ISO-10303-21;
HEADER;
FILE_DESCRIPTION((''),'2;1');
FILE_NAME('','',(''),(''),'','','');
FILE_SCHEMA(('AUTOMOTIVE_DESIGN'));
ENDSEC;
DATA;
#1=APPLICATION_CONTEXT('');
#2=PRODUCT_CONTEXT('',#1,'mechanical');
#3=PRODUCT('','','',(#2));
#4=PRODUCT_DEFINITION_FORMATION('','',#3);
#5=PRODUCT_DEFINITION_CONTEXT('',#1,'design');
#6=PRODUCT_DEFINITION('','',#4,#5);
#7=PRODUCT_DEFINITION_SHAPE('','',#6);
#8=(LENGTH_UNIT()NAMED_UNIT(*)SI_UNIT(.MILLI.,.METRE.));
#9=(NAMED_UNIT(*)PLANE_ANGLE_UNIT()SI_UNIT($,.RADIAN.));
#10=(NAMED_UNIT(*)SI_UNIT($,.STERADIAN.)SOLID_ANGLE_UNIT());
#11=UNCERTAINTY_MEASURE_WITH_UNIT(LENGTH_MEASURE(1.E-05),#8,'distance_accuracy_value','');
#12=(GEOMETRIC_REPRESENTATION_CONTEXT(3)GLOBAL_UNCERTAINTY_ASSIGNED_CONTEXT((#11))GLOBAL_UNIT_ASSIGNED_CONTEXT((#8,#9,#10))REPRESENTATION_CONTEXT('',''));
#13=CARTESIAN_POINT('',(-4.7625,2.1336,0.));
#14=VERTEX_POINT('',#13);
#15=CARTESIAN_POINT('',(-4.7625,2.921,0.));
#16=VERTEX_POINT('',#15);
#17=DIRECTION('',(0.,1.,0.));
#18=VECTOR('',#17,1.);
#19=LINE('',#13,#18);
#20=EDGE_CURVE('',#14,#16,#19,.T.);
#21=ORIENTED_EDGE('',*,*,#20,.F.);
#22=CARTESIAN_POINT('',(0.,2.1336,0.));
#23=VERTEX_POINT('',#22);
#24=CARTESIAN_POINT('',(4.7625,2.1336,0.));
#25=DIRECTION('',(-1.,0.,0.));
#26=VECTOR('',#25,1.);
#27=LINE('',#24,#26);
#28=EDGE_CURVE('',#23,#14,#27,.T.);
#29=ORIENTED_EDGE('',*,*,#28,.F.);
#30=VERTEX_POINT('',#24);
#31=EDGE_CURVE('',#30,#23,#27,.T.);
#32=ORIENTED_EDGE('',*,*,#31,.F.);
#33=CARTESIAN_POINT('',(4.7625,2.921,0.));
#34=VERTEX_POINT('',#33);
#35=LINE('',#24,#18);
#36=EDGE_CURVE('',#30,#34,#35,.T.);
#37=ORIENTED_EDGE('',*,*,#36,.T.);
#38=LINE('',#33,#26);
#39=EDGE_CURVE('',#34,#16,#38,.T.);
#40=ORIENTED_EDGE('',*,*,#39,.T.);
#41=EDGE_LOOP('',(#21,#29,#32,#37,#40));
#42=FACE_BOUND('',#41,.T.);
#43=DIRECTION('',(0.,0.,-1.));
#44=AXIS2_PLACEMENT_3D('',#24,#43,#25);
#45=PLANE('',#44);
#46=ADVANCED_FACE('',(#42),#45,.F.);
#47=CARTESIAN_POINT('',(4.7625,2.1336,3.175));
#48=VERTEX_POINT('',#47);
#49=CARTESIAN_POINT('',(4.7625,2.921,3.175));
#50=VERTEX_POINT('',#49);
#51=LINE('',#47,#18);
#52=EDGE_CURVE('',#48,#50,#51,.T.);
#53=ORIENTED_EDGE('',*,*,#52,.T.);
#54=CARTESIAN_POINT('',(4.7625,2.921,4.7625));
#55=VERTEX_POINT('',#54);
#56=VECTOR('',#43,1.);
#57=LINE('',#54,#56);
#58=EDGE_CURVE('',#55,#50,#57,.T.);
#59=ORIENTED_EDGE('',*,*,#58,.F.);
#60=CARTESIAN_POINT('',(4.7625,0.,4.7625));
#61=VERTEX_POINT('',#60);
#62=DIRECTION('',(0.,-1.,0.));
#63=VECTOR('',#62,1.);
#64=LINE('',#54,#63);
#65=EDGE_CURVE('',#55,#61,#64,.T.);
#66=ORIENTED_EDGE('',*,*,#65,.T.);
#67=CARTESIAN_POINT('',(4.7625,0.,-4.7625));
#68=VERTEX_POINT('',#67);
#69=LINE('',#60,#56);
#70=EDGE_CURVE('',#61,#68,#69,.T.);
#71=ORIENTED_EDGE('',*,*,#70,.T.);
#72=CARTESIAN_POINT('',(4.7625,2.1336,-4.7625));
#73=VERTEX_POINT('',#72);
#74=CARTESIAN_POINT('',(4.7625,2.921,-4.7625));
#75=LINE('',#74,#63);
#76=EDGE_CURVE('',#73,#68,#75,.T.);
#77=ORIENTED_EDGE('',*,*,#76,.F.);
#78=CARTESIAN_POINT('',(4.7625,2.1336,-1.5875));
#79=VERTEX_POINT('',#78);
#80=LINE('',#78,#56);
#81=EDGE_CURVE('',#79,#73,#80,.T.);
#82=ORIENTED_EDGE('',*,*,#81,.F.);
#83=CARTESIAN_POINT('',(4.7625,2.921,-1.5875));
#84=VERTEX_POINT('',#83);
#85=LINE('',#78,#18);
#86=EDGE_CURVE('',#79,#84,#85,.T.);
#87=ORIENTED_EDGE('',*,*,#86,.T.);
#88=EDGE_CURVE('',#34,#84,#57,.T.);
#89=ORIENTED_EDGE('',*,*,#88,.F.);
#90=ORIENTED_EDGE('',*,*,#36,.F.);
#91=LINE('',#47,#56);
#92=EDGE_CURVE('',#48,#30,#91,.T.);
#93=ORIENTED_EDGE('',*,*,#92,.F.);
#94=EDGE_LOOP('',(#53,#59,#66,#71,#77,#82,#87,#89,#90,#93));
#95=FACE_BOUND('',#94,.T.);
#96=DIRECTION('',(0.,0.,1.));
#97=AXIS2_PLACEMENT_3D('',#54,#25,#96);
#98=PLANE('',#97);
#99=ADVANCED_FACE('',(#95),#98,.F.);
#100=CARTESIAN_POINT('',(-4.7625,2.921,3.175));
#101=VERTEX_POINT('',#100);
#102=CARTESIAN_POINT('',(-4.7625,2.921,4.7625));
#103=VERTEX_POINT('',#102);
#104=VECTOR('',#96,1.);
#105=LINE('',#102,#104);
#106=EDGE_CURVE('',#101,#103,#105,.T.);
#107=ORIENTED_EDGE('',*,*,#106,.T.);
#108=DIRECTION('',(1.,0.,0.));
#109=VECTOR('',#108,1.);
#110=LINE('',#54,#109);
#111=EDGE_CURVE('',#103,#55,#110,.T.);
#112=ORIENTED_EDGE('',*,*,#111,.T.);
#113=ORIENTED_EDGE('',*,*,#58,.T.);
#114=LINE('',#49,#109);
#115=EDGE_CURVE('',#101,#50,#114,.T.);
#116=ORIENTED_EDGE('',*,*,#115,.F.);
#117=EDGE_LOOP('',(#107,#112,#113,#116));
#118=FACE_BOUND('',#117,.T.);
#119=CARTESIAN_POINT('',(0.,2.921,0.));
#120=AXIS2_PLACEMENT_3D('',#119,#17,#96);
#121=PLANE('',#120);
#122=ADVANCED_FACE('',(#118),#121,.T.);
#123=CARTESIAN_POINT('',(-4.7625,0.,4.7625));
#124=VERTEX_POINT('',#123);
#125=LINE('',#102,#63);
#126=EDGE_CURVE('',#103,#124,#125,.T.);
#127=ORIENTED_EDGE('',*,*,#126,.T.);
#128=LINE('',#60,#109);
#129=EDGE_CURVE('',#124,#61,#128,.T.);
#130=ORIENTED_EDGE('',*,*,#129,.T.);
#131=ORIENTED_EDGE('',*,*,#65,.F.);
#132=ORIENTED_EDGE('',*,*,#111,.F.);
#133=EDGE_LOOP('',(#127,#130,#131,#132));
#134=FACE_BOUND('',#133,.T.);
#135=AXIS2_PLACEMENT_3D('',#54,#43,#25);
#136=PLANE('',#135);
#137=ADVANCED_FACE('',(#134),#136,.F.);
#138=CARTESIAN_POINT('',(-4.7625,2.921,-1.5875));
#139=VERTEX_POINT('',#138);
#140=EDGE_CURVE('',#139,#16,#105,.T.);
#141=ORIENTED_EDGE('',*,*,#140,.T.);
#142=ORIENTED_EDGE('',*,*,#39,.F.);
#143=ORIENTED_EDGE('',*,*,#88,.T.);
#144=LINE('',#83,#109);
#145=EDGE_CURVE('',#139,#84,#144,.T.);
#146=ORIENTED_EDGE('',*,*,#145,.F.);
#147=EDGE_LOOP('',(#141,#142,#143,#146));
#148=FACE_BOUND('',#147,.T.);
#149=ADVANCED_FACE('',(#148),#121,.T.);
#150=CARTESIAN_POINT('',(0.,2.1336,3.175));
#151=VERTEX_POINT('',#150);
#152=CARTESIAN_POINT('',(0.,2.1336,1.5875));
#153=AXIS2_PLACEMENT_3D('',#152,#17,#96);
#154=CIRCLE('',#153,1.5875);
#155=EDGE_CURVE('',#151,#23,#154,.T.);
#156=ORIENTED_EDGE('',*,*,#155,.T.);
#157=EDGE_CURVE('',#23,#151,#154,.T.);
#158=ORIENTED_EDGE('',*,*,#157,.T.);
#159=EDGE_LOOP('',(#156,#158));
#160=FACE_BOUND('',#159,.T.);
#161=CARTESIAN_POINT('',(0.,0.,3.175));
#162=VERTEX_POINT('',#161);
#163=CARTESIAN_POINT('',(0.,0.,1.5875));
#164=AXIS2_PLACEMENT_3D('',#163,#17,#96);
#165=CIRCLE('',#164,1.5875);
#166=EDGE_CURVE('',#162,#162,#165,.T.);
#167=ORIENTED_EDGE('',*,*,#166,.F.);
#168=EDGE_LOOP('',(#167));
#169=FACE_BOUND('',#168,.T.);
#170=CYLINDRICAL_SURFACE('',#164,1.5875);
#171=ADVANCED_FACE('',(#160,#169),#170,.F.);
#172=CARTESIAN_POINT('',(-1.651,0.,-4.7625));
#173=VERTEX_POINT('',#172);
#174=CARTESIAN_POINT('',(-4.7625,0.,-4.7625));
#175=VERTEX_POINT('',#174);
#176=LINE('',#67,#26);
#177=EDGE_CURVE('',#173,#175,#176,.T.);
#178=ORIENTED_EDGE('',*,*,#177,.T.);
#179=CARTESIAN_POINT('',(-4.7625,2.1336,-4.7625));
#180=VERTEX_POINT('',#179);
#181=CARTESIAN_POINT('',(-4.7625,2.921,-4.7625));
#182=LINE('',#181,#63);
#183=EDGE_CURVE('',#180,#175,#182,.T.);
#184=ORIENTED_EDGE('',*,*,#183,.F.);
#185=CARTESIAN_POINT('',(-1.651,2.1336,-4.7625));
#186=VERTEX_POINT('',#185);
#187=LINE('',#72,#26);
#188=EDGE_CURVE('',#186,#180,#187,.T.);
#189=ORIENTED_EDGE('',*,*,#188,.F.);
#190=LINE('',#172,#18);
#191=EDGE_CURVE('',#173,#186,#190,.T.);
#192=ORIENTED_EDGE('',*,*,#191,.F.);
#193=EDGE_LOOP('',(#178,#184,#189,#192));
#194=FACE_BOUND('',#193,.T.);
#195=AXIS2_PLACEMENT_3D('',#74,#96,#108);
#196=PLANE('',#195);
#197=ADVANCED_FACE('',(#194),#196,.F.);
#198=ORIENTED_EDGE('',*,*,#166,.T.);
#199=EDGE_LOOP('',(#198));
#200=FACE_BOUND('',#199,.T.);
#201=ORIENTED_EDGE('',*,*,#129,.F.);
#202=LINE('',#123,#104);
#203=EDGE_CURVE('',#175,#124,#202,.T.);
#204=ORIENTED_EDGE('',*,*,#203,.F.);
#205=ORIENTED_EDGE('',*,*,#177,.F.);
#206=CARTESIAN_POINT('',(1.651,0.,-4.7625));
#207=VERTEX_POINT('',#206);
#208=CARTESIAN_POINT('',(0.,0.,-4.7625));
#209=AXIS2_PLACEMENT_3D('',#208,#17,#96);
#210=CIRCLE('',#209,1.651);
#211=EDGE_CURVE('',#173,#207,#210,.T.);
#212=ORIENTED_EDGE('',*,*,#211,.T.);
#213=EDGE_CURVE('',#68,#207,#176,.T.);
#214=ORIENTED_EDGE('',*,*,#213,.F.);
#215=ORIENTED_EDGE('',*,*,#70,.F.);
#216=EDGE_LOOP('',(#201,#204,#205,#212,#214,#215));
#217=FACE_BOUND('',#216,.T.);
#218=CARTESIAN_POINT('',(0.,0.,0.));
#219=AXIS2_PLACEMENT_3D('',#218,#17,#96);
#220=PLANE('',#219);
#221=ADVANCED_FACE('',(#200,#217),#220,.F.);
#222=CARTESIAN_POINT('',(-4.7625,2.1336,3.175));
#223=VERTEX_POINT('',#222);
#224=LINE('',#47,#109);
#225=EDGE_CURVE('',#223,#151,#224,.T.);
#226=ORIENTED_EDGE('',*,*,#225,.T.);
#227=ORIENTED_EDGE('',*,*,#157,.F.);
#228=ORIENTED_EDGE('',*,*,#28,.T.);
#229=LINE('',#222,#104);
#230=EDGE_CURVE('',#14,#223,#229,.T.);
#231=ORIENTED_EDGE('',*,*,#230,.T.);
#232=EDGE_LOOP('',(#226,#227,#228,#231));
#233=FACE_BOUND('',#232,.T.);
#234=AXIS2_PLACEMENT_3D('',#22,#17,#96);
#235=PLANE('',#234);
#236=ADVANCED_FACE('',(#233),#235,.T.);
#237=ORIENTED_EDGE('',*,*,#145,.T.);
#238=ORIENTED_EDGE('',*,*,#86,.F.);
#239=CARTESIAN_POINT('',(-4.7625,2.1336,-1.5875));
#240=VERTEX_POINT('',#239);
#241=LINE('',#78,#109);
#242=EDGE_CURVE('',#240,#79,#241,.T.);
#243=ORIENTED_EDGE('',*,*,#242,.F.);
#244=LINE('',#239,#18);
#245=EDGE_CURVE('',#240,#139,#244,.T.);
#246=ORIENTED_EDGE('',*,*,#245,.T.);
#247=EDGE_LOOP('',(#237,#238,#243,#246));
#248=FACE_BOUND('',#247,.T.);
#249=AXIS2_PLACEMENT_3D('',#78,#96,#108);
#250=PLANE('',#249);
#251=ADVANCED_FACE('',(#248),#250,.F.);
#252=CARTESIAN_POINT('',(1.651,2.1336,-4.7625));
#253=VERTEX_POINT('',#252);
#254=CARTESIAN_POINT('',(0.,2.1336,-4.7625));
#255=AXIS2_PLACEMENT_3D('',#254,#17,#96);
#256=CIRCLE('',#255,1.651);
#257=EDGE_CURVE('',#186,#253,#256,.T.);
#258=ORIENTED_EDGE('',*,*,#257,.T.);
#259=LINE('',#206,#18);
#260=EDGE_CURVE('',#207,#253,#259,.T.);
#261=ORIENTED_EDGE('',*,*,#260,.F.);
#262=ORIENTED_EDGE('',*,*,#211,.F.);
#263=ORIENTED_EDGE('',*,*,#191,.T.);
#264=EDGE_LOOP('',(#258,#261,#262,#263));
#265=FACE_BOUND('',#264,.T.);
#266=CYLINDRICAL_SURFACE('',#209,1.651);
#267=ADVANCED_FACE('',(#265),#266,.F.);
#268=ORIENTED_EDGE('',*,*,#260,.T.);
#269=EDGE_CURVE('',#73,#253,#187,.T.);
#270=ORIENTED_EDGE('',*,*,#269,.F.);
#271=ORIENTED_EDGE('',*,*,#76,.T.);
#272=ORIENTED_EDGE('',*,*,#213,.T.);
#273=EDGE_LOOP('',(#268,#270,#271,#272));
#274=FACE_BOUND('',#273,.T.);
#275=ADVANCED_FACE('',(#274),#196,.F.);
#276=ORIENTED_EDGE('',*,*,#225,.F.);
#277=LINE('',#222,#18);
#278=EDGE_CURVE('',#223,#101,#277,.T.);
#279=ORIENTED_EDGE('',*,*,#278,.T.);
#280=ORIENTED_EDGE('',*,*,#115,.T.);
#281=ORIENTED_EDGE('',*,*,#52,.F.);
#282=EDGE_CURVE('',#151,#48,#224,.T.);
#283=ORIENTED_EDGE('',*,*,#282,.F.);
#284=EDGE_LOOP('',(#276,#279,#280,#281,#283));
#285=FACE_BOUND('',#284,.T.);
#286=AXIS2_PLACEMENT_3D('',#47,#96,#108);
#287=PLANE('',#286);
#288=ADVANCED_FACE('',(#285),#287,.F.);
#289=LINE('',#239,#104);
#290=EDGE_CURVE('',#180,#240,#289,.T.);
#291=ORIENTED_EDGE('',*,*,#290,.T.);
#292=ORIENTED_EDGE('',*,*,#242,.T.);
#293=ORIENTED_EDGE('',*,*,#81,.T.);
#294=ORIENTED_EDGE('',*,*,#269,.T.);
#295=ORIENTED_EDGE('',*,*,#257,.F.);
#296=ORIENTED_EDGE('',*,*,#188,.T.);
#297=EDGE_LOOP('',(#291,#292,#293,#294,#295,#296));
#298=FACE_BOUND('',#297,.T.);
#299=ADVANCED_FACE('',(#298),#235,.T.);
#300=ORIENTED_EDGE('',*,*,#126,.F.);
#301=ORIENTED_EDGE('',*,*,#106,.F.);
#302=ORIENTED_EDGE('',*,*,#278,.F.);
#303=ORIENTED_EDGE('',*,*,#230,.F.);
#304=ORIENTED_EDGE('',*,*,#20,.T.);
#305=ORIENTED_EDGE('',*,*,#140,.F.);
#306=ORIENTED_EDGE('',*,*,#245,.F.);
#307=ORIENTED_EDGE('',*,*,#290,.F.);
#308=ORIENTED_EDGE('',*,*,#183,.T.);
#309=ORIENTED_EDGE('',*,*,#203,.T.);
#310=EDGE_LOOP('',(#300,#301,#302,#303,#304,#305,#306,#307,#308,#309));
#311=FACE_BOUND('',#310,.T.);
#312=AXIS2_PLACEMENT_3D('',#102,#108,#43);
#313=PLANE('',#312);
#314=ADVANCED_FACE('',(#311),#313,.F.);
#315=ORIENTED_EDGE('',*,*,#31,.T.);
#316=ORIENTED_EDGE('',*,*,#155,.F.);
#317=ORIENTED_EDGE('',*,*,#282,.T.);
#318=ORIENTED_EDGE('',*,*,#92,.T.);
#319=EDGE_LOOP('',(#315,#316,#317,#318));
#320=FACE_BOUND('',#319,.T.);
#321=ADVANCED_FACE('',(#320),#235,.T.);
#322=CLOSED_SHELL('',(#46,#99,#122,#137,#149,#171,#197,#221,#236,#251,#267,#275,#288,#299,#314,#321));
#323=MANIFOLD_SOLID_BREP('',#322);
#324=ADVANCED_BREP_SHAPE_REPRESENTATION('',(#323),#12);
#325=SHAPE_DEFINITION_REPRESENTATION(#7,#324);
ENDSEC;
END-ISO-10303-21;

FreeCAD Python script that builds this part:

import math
import FreeCAD as App
import Part
import Sketcher

V = App.Vector
Q = App.Units.Quantity

doc = App.newDocument("Part")
body = doc.addObject("PartDesign::Body", "Body")

# Sketch on XZ plane
sketch1 = doc.addObject("Sketcher::SketchObject", "Sketch")
body.addObject(sketch1)
sketch1.AttachmentSupport = (doc.XZ_Plane, [""])
sketch1.MapMode = "FlatFace"
sketch1.addGeometry([
    Part.LineSegment(V(-4.7625, -4.7625, 0), V(-4.7625, 4.7625, 0)),
    Part.LineSegment(V(-4.7625, 4.7625, 0), V(4.7625, 4.7625, 0)),
    Part.LineSegment(V(4.7625, 4.7625, 0), V(4.7625, -4.7625, 0)),
    Part.LineSegment(V(4.7625, -4.7625, 0), V(-4.7625, -4.7625, 0)),
], False)
sketch1.addConstraint([
    Sketcher.Constraint("Coincident", 0, 2, 1, 1),
    Sketcher.Constraint("Coincident", 1, 2, 2, 1),
    Sketcher.Constraint("Coincident", 2, 2, 3, 1),
    Sketcher.Constraint("Coincident", 3, 2, 0, 1),
    Sketcher.Constraint("Vertical", 0),
    Sketcher.Constraint("Horizontal", 1),
    Sketcher.Constraint("Vertical", 2),
    Sketcher.Constraint("Horizontal", 3),
    Sketcher.Constraint("Symmetric", 0, 2, 2, 2, -1, 1),
    Sketcher.Constraint("Equal", 3, 0),
    Sketcher.Constraint("DistanceX", 1, 1, 1, 2, Q("0.375 in")),
])
pad1 = doc.addObject("PartDesign::Pad", "Pad")
body.addObject(pad1)
pad1.Profile = sketch1
pad1.Length = Q("0.115 in")
pad1.Reversed = True

# Sketch on XZ plane
sketch2 = doc.addObject("Sketcher::SketchObject", "Sketch001")
body.addObject(sketch2)
sketch2.AttachmentSupport = (doc.XZ_Plane, [""])
sketch2.MapMode = "FlatFace"
sketch2.AttachmentOffset = App.Placement(V(0, 0, -0.115 * 25.4), App.Rotation())
sketch2.addGeometry([
    Part.LineSegment(V(-4.7625, 0, 0), V(-4.7625, 3.175, 0)),  # 0
    Part.LineSegment(V(-4.7625, 3.175, 0), V(4.7625, 3.175, 0)),  # 1
    Part.LineSegment(V(4.7625, 3.175, 0), V(4.7625, 0, 0)),  # 2
    Part.LineSegment(V(4.7625, 0, 0), V(-4.7625, 0, 0)),  # 3
    Part.LineSegment(V(-4.7625, -4.7625, 0), V(-4.7625, -1.5875, 0)),  # 4
    Part.LineSegment(V(-4.7625, -1.5875, 0), V(4.7625, -1.5875, 0)),  # 5
    Part.LineSegment(V(4.7625, -1.5875, 0), V(4.7625, -4.7625, 0)),  # 6
    Part.LineSegment(V(4.7625, -4.7625, 0), V(-4.7625, -4.7625, 0)),  # 7
], False)
sketch2.addConstraint([
    Sketcher.Constraint("Coincident", 0, 2, 1, 1),
    Sketcher.Constraint("Coincident", 1, 2, 2, 1),
    Sketcher.Constraint("Coincident", 2, 2, 3, 1),
    Sketcher.Constraint("Coincident", 3, 2, 0, 1),
    Sketcher.Constraint("Coincident", 4, 2, 5, 1),
    Sketcher.Constraint("Coincident", 5, 2, 6, 1),
    Sketcher.Constraint("Coincident", 6, 2, 7, 1),
    Sketcher.Constraint("Coincident", 7, 2, 4, 1),
    Sketcher.Constraint("Vertical", 0),
    Sketcher.Constraint("Horizontal", 1),
    Sketcher.Constraint("Vertical", 2),
    Sketcher.Constraint("Horizontal", 3),
    Sketcher.Constraint("Vertical", 4),
    Sketcher.Constraint("Horizontal", 5),
    Sketcher.Constraint("Vertical", 6),
    Sketcher.Constraint("Horizontal", 7),
    Sketcher.Constraint("Symmetric", 2, 2, 3, 2, -1, 1),
    Sketcher.Constraint("Vertical", 3, 2, 4, 2),
    Sketcher.Constraint("Vertical", 2, 2, 5, 2),
    Sketcher.Constraint("Equal", 2, 4),
    Sketcher.Constraint("DistanceX", 1, 1, 1, 2, Q("0.375 in")),
    Sketcher.Constraint("DistanceY", 0, 1, 0, 2, Q("0.125 in")),
    Sketcher.Constraint("DistanceY", 4, 2, -1, 1, Q("0.0625 in")),
])
pocket1 = doc.addObject("PartDesign::Pocket", "Pocket")
body.addObject(pocket1)
pocket1.Profile = sketch2
pocket1.Length = Q("0.031 in")
pocket1.Reversed = True

# Sketch on XZ plane
sketch3 = doc.addObject("Sketcher::SketchObject", "Sketch002")
body.addObject(sketch3)
sketch3.AttachmentSupport = (doc.XZ_Plane, [""])
sketch3.MapMode = "FlatFace"
sketch3.AttachmentOffset = App.Placement(V(0, 0, -0.084 * 25.4), App.Rotation())
sketch3.addGeometry([
    Part.Circle(V(0, 1.5875, 0), V(0, 0, 1), 1.5875),
    Part.LineSegment(V(1.651, -4.7625, 0), V(-1.651, -4.7625, 0)),
    Part.ArcOfCircle(Part.Circle(V(0, -4.7625, 0), V(0, 0, 1), 1.651), math.radians(0), math.radians(180)),
], False)
sketch3.addConstraint([
    Sketcher.Constraint("Coincident", 1, 1, 2, 1),
    Sketcher.Constraint("Coincident", 2, 2, 1, 2),
    Sketcher.Constraint("Horizontal", 1),
    Sketcher.Constraint("PointOnObject", 0, 3, -2),
    Sketcher.Constraint("PointOnObject", 2, 3, -2),
    Sketcher.Constraint("Horizontal", 2, 3, 1, 1),
    Sketcher.Constraint("Diameter", 0, Q("0.125 in")),
    Sketcher.Constraint("Radius", 2, Q("0.065 in")),
    Sketcher.Constraint("DistanceY", 2, 3, 0, 3, Q("0.25 in")),
    Sketcher.Constraint("DistanceY", -1, 1, 0, 3, Q("0.0625 in")),
])
pocket2 = doc.addObject("PartDesign::Pocket", "Pocket001")
body.addObject(pocket2)
pocket2.Profile = sketch3
pocket2.Type = "ThroughAll"
pocket2.Reversed = True

doc.recompute()
